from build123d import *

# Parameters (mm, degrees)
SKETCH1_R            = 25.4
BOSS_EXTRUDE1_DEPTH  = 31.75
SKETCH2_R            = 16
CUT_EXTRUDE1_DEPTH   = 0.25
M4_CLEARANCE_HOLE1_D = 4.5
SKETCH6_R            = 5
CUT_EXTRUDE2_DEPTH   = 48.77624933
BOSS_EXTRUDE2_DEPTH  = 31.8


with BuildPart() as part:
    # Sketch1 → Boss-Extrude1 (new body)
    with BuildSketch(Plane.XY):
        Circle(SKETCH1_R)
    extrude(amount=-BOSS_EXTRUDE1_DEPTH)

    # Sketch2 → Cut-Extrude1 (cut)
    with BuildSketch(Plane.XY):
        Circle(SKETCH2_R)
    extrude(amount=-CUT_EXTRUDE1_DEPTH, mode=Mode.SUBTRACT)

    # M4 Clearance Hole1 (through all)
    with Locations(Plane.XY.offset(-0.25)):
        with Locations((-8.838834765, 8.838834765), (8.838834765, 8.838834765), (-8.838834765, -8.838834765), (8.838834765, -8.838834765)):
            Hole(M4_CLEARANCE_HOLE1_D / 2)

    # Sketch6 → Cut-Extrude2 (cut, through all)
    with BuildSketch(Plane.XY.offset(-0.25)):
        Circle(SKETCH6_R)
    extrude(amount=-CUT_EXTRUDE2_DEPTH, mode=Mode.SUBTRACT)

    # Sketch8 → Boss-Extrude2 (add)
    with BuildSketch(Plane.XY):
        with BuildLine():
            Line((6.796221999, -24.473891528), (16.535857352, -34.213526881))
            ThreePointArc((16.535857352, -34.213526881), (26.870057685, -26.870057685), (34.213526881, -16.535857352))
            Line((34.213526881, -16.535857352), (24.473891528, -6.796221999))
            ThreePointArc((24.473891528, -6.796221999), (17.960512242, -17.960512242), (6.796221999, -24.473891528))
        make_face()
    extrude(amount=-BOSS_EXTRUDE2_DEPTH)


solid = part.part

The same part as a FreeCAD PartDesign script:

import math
import FreeCAD as App
import Part
import Sketcher

V = App.Vector
Q = App.Units.Quantity

doc = App.newDocument("Part")
body = doc.addObject("PartDesign::Body", "Body")

sketch1 = body.newObject("Sketcher::SketchObject", "Sketch")
sketch1.AttachmentSupport = (doc.getObject("XY_Plane"), [""])
sketch1.MapMode = "FlatFace"
sketch1.addGeometry(Part.Circle(V(0, 0, 0), V(0, 0, 1), 25.4), False)
sketch1.addConstraint([
    Sketcher.Constraint("Coincident", 0, 3, -1, 1),
    Sketcher.Constraint("Diameter", 0, Q("50.8 mm")),
])
pad1 = body.newObject("PartDesign::Pad", "Pad")
pad1.Profile = sketch1
pad1.Length = 31.75
pad1.Reversed = True

sketch2 = body.newObject("Sketcher::SketchObject", "Sketch001")
sketch2.AttachmentSupport = (doc.getObject("XY_Plane"), [""])
sketch2.MapMode = "FlatFace"
sketch2.addGeometry(Part.Circle(V(0, 0, 0), V(0, 0, 1), 16), False)
sketch2.addConstraint([
    Sketcher.Constraint("Coincident", 0, 3, -1, 1),
    Sketcher.Constraint("Diameter", 0, Q("32 mm")),
])
pocket1 = body.newObject("PartDesign::Pocket", "Pocket")
pocket1.Profile = sketch2
pocket1.Length = 0.25

sketch3 = body.newObject("Sketcher::SketchObject", "Sketch002")
sketch3.AttachmentSupport = (doc.getObject("XY_Plane"), [""])
sketch3.MapMode = "FlatFace"
sketch3.AttachmentOffset = App.Placement(V(0, 0, -0.25), App.Rotation())
sketch3.addGeometry([
    Part.Circle(V(-8.838835, 8.838835, 0), V(0, 0, 1), 2.25),
    Part.Circle(V(8.838835, 8.838835, 0), V(0, 0, 1), 2.25),
    Part.Circle(V(-8.838835, -8.838835, 0), V(0, 0, 1), 2.25),
    Part.Circle(V(8.838835, -8.838835, 0), V(0, 0, 1), 2.25),
], False)
sketch3.addConstraint([
    Sketcher.Constraint("Equal", 0, 1),
    Sketcher.Constraint("Equal", 1, 2),
    Sketcher.Constraint("Equal", 2, 3),
    Sketcher.Constraint("Symmetric", 1, 3, 2, 3, -1, 1),
    Sketcher.Constraint("Symmetric", 0, 3, 3, 3, -1, 1),
    Sketcher.Constraint("Symmetric", 0, 3, 1, 3, -2),
    Sketcher.Constraint("Diameter", 0, Q("4.5 mm")),
    Sketcher.Constraint("DistanceX", 0, 3, 1, 3, Q("17.67767 mm")),
    Sketcher.Constraint("DistanceY", 2, 3, 0, 3, Q("17.67767 mm")),
])
doc.recompute()
hole = body.newObject("PartDesign::Hole", "Hole")
hole.Profile = sketch3
hole.ThreadType = "None"
hole.Diameter = 4.5
hole.DepthType = "ThroughAll"

sketch4 = body.newObject("Sketcher::SketchObject", "Sketch003")
sketch4.AttachmentSupport = (doc.getObject("XY_Plane"), [""])
sketch4.MapMode = "FlatFace"
sketch4.AttachmentOffset = App.Placement(V(0, 0, -0.25), App.Rotation())
sketch4.addGeometry(Part.Circle(V(0, 0, 0), V(0, 0, 1), 5), False)
sketch4.addConstraint([
    Sketcher.Constraint("Coincident", 0, 3, -1, 1),
    Sketcher.Constraint("Diameter", 0, Q("10 mm")),
])
pocket2 = body.newObject("PartDesign::Pocket", "Pocket001")
pocket2.Profile = sketch4
pocket2.Type = "ThroughAll"

sketch5 = body.newObject("Sketcher::SketchObject", "Sketch004")
sketch5.AttachmentSupport = (doc.getObject("XY_Plane"), [""])
sketch5.MapMode = "FlatFace"
sketch5.addGeometry([
    Part.LineSegment(V(6.796222, -24.473892, 0), V(16.535857, -34.213527, 0)),
    Part.ArcOfCircle(Part.Circle(V(0, 0, 0), V(0, 0, 1), 38), math.radians(-64.204897), math.radians(-25.795103)),
    Part.LineSegment(V(34.213527, -16.535857, 0), V(24.473892, -6.796222, 0)),
    Part.ArcOfCircle(Part.Circle(V(0, 0, 0), V(0, 0, 1), 25.4), math.radians(-74.480412), math.radians(-15.519588)),
], False)
sketch5.addConstraint([
    Sketcher.Constraint("Coincident", 0, 2, 1, 1),
    Sketcher.Constraint("Coincident", 1, 2, 2, 1),
    Sketcher.Constraint("Coincident", 2, 2, 3, 2),
    Sketcher.Constraint("Coincident", 3, 1, 0, 1),
    Sketcher.Constraint("Coincident", 1, 3, -1, 1),
    Sketcher.Constraint("Coincident", 3, 3, -1, 1),
    Sketcher.Constraint("Parallel", 0, 2),
    Sketcher.Constraint("Equal", 0, 2),
    Sketcher.Constraint("Radius", 1, Q("38 mm")),
    Sketcher.Constraint("Radius", 3, Q("25.4 mm")),
    Sketcher.Constraint("Angle", 0, Q("-45 deg")),
    Sketcher.Constraint("DistanceX", -1, 1, 2, 2, Q("24.473892 mm")),
])
pad2 = body.newObject("PartDesign::Pad", "Pad001")
pad2.Profile = sketch5
pad2.Length = 31.8
pad2.Reversed = True

doc.recompute()
